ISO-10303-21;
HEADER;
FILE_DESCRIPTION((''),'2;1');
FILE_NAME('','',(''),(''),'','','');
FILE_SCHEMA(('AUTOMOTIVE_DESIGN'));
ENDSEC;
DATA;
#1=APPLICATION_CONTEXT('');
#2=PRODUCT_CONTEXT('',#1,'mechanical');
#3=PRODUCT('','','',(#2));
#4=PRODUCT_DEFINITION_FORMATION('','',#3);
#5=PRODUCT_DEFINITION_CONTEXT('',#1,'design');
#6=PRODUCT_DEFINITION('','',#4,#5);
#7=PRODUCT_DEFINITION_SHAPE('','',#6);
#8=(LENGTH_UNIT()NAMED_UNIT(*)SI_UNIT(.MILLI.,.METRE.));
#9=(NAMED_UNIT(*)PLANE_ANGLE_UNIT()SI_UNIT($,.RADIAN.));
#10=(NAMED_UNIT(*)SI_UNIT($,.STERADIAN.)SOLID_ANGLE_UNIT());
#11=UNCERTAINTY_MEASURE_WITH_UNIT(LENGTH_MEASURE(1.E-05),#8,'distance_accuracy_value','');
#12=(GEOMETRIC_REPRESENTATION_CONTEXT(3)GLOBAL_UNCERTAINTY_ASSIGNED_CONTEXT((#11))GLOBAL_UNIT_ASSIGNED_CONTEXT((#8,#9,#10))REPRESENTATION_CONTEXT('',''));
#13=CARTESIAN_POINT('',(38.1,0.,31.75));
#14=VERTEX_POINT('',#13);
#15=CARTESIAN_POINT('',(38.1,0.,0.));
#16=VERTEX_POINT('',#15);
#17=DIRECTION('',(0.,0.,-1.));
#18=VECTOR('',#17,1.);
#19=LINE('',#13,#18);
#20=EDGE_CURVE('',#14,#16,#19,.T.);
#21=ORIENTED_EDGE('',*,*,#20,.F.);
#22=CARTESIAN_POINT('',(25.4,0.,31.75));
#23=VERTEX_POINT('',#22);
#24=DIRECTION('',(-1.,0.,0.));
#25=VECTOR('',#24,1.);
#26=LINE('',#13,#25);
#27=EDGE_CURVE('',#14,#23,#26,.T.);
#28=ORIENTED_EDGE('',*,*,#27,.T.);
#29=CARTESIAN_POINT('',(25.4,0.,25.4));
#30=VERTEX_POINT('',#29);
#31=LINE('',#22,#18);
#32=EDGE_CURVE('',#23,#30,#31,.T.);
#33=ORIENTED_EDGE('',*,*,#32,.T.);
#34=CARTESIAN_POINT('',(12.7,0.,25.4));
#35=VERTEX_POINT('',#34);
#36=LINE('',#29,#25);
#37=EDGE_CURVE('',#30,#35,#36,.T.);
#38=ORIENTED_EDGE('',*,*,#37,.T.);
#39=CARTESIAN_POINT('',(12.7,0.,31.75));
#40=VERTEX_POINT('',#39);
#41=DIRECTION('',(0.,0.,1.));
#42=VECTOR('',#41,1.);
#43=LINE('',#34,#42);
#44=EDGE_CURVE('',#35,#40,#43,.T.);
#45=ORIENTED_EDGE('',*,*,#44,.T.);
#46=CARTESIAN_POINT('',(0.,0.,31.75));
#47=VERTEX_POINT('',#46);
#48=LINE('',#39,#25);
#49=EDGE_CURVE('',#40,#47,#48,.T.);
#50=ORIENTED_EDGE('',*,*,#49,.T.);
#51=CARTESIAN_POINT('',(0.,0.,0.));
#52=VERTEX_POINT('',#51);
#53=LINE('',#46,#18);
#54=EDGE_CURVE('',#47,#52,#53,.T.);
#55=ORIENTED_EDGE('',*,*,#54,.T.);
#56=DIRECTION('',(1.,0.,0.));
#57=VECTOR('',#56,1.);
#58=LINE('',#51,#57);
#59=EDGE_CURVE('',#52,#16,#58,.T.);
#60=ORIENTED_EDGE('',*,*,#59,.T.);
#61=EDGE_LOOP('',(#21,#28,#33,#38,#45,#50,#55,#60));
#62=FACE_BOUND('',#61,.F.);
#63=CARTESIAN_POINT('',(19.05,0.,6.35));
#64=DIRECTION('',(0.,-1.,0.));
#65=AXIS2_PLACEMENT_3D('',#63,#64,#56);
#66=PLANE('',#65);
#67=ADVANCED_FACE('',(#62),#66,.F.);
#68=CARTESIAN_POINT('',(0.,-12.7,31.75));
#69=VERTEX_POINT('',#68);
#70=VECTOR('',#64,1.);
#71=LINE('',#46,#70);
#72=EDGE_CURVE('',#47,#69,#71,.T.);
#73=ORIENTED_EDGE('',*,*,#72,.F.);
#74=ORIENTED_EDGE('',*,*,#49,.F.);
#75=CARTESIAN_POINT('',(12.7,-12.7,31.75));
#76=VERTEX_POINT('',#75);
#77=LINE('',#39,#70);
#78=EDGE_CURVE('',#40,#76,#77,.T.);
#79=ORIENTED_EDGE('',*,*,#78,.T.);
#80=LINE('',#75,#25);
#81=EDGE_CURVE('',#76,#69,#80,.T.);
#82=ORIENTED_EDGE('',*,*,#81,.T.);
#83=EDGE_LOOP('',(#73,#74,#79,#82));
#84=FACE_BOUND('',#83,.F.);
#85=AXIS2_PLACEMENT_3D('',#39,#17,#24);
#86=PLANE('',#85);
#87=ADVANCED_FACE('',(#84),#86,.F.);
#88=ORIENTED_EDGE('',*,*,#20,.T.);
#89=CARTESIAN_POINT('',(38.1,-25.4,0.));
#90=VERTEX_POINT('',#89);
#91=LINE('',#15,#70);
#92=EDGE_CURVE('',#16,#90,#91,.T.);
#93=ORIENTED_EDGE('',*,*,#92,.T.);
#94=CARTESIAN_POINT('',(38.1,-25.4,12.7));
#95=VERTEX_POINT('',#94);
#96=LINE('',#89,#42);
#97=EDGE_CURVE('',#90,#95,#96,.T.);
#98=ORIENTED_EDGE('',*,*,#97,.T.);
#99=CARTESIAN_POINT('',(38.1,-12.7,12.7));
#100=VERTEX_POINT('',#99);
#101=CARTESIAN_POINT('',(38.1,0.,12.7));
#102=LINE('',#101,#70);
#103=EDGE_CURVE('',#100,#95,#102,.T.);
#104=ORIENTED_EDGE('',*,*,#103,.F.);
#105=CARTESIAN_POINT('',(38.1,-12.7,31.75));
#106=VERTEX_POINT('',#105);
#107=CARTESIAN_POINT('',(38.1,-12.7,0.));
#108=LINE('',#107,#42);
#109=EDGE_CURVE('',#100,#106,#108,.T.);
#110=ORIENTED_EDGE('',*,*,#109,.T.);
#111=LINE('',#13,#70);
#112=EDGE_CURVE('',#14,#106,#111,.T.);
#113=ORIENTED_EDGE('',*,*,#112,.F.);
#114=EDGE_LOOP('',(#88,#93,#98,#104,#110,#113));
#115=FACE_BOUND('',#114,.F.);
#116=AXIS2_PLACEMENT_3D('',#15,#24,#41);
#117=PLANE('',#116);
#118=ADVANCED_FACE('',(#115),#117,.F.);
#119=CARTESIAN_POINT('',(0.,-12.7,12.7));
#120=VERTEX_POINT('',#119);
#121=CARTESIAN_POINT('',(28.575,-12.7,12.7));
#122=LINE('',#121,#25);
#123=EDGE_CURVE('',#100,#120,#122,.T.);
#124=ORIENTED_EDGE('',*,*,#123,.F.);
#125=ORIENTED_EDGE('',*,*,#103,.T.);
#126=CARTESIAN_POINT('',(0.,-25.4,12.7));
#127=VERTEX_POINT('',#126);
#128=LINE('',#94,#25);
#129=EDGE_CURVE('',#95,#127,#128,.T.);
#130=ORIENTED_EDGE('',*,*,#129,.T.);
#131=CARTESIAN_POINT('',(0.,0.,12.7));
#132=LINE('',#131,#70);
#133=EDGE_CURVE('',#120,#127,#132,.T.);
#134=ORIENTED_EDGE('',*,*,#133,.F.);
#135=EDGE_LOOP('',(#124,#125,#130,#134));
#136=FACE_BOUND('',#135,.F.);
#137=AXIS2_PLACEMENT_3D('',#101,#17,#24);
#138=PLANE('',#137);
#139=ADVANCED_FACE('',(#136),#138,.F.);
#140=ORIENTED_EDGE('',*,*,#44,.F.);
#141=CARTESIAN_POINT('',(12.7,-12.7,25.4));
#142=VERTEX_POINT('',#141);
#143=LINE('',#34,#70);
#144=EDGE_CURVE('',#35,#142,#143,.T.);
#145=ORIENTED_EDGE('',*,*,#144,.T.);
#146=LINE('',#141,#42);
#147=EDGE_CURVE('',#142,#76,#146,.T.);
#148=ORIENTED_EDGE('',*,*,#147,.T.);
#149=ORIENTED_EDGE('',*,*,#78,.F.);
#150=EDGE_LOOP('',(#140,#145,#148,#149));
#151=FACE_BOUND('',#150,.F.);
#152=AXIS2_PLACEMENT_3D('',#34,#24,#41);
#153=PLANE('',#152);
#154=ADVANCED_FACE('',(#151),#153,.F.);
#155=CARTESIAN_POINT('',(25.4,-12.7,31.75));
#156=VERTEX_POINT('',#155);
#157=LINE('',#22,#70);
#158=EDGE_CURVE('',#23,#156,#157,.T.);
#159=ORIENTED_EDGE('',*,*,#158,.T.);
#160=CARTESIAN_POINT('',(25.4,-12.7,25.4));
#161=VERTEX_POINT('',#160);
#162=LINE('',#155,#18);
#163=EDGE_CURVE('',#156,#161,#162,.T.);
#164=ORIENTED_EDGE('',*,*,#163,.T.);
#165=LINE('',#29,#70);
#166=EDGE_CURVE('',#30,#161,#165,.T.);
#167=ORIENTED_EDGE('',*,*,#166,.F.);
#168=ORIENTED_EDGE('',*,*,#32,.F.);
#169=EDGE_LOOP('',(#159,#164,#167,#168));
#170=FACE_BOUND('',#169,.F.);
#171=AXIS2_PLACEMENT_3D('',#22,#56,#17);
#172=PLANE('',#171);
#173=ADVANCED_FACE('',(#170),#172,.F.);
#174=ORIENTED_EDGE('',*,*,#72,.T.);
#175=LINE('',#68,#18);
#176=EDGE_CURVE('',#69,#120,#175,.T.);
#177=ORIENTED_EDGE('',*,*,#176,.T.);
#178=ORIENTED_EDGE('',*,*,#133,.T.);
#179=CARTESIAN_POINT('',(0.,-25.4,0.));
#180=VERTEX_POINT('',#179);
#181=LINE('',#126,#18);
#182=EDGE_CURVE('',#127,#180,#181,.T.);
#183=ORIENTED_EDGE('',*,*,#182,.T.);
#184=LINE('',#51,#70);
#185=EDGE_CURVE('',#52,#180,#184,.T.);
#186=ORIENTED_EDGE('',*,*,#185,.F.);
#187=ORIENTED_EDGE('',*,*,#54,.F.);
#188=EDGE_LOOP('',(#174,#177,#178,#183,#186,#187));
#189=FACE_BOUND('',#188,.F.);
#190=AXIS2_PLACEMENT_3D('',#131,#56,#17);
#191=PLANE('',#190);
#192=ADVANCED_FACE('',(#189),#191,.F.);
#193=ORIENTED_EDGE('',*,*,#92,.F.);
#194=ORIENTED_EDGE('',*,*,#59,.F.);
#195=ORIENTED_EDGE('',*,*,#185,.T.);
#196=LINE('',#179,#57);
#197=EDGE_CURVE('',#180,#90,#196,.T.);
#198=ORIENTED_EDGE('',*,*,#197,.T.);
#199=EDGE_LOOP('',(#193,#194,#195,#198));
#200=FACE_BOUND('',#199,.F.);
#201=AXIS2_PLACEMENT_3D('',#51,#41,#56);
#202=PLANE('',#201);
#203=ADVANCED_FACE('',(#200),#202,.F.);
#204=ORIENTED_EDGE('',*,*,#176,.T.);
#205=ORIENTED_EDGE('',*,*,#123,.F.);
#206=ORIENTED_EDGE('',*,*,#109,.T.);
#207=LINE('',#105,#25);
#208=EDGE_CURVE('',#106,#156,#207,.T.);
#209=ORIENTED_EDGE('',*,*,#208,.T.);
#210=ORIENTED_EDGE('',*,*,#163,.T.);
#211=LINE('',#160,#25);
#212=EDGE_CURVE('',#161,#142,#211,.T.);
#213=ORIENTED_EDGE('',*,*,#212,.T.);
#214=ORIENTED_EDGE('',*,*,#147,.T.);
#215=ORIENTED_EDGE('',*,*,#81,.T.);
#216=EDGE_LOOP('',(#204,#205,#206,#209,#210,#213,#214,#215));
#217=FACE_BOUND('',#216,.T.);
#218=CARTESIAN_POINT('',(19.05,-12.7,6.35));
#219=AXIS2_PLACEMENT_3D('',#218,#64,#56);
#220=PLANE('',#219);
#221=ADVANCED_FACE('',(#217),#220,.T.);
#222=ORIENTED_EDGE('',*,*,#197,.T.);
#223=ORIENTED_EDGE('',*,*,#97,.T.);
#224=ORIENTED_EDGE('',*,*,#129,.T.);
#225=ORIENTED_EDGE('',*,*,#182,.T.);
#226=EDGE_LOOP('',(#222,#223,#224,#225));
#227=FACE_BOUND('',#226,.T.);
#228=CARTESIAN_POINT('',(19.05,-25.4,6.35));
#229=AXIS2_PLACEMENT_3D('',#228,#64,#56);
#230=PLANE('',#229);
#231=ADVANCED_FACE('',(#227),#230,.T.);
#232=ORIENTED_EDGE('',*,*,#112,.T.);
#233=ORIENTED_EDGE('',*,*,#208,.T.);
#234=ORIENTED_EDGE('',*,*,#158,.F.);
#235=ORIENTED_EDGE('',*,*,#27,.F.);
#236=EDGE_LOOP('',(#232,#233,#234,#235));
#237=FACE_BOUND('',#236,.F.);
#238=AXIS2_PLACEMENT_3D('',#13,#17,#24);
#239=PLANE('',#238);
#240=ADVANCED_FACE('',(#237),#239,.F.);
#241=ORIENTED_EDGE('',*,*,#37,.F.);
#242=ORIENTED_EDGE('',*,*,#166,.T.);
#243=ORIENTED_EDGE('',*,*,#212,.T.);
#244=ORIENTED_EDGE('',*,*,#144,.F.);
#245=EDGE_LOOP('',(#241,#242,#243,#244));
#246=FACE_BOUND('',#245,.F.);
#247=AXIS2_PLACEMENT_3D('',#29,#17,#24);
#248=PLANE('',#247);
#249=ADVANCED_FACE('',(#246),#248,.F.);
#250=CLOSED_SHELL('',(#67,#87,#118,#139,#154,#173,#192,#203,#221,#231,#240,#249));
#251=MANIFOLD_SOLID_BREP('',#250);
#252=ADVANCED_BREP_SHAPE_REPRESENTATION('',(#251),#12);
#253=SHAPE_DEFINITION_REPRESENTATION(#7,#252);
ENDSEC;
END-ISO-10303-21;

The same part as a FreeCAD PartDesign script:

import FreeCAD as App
import Part
import Sketcher
Q = App.Units.Quantity


def add_polygon(sketch, points):
    """Adds a closed chain of lines whose ends are joined by coincident constraints."""
    first, n = sketch.GeometryCount, len(points)
    for a, b in zip(points, points[1:] + points[:1]):
        sketch.addGeometry(Part.LineSegment(App.Vector(*a, 0), App.Vector(*b, 0)), False)
    for i in range(n):
        sketch.addConstraint(Sketcher.Constraint("Coincident", first + i, 2, first + (i + 1) % n, 1))

doc = App.newDocument("Part")
body = doc.addObject("PartDesign::Body", "Body")

# Sketch on XZ plane
sketch1 = body.newObject("Sketcher::SketchObject", "Sketch")
sketch1.AttachmentSupport = (doc.getObject("XZ_Plane"), [""])
sketch1.MapMode = "FlatFace"
add_polygon(sketch1, [(0, 13), (0, 0), (38, 0), (38, 13)])  # lines 0-3
sketch1.addConstraint(Sketcher.Constraint("Vertical", 0))
sketch1.addConstraint(Sketcher.Constraint("Horizontal", 1))
sketch1.addConstraint(Sketcher.Constraint("Vertical", 2))
sketch1.addConstraint(Sketcher.Constraint("Horizontal", 3))
sketch1.addConstraint(Sketcher.Constraint("Coincident", 0, 2, -1, 1))
sketch1.addConstraint(Sketcher.Constraint("DistanceX", 1, 1, 1, 2, Q("1.5 in")))
sketch1.addConstraint(Sketcher.Constraint("DistanceY", 0, 2, 0, 1, Q("0.5 in")))
pad1 = body.newObject("PartDesign::Pad", "Pad")
pad1.Profile = sketch1
pad1.Length = Q("1 in")

# Sketch on XZ plane
sketch2 = body.newObject("Sketcher::SketchObject", "Sketch001")
sketch2.AttachmentSupport = (doc.getObject("XZ_Plane"), [""])
sketch2.MapMode = "FlatFace"
add_polygon(sketch2, [(0, 0), (38, 0), (38, 32), (25, 32), (25, 25), (13, 25), (13, 32), (0, 32)])  # lines 0-7
sketch2.addConstraint(Sketcher.Constraint("Horizontal", 0))
sketch2.addConstraint(Sketcher.Constraint("Vertical", 1))
sketch2.addConstraint(Sketcher.Constraint("Horizontal", 2))
sketch2.addConstraint(Sketcher.Constraint("Vertical", 3))
sketch2.addConstraint(Sketcher.Constraint("Horizontal", 4))
sketch2.addConstraint(Sketcher.Constraint("Vertical", 5))
sketch2.addConstraint(Sketcher.Constraint("Horizontal", 6))
sketch2.addConstraint(Sketcher.Constraint("Vertical", 7))
sketch2.addConstraint(Sketcher.Constraint("Coincident", 7, 2, -1, 1))
sketch2.addConstraint(Sketcher.Constraint("Horizontal", 2, 2, 5, 2))
sketch2.addConstraint(Sketcher.Constraint("Equal", 2, 4))
sketch2.addConstraint(Sketcher.Constraint("Equal", 4, 6))
sketch2.addConstraint(Sketcher.Constraint("DistanceX", 0, 1, 0, 2, Q("1.5 in")))
sketch2.addConstraint(Sketcher.Constraint("DistanceY", -1, 1, 3, 2, Q("1 in")))
sketch2.addConstraint(Sketcher.Constraint("DistanceY", 1, 1, 1, 2, Q("1.25 in")))
pad2 = body.newObject("PartDesign::Pad", "Pad001")
pad2.Profile = sketch2
pad2.Length = Q("0.5 in")

doc.recompute()
